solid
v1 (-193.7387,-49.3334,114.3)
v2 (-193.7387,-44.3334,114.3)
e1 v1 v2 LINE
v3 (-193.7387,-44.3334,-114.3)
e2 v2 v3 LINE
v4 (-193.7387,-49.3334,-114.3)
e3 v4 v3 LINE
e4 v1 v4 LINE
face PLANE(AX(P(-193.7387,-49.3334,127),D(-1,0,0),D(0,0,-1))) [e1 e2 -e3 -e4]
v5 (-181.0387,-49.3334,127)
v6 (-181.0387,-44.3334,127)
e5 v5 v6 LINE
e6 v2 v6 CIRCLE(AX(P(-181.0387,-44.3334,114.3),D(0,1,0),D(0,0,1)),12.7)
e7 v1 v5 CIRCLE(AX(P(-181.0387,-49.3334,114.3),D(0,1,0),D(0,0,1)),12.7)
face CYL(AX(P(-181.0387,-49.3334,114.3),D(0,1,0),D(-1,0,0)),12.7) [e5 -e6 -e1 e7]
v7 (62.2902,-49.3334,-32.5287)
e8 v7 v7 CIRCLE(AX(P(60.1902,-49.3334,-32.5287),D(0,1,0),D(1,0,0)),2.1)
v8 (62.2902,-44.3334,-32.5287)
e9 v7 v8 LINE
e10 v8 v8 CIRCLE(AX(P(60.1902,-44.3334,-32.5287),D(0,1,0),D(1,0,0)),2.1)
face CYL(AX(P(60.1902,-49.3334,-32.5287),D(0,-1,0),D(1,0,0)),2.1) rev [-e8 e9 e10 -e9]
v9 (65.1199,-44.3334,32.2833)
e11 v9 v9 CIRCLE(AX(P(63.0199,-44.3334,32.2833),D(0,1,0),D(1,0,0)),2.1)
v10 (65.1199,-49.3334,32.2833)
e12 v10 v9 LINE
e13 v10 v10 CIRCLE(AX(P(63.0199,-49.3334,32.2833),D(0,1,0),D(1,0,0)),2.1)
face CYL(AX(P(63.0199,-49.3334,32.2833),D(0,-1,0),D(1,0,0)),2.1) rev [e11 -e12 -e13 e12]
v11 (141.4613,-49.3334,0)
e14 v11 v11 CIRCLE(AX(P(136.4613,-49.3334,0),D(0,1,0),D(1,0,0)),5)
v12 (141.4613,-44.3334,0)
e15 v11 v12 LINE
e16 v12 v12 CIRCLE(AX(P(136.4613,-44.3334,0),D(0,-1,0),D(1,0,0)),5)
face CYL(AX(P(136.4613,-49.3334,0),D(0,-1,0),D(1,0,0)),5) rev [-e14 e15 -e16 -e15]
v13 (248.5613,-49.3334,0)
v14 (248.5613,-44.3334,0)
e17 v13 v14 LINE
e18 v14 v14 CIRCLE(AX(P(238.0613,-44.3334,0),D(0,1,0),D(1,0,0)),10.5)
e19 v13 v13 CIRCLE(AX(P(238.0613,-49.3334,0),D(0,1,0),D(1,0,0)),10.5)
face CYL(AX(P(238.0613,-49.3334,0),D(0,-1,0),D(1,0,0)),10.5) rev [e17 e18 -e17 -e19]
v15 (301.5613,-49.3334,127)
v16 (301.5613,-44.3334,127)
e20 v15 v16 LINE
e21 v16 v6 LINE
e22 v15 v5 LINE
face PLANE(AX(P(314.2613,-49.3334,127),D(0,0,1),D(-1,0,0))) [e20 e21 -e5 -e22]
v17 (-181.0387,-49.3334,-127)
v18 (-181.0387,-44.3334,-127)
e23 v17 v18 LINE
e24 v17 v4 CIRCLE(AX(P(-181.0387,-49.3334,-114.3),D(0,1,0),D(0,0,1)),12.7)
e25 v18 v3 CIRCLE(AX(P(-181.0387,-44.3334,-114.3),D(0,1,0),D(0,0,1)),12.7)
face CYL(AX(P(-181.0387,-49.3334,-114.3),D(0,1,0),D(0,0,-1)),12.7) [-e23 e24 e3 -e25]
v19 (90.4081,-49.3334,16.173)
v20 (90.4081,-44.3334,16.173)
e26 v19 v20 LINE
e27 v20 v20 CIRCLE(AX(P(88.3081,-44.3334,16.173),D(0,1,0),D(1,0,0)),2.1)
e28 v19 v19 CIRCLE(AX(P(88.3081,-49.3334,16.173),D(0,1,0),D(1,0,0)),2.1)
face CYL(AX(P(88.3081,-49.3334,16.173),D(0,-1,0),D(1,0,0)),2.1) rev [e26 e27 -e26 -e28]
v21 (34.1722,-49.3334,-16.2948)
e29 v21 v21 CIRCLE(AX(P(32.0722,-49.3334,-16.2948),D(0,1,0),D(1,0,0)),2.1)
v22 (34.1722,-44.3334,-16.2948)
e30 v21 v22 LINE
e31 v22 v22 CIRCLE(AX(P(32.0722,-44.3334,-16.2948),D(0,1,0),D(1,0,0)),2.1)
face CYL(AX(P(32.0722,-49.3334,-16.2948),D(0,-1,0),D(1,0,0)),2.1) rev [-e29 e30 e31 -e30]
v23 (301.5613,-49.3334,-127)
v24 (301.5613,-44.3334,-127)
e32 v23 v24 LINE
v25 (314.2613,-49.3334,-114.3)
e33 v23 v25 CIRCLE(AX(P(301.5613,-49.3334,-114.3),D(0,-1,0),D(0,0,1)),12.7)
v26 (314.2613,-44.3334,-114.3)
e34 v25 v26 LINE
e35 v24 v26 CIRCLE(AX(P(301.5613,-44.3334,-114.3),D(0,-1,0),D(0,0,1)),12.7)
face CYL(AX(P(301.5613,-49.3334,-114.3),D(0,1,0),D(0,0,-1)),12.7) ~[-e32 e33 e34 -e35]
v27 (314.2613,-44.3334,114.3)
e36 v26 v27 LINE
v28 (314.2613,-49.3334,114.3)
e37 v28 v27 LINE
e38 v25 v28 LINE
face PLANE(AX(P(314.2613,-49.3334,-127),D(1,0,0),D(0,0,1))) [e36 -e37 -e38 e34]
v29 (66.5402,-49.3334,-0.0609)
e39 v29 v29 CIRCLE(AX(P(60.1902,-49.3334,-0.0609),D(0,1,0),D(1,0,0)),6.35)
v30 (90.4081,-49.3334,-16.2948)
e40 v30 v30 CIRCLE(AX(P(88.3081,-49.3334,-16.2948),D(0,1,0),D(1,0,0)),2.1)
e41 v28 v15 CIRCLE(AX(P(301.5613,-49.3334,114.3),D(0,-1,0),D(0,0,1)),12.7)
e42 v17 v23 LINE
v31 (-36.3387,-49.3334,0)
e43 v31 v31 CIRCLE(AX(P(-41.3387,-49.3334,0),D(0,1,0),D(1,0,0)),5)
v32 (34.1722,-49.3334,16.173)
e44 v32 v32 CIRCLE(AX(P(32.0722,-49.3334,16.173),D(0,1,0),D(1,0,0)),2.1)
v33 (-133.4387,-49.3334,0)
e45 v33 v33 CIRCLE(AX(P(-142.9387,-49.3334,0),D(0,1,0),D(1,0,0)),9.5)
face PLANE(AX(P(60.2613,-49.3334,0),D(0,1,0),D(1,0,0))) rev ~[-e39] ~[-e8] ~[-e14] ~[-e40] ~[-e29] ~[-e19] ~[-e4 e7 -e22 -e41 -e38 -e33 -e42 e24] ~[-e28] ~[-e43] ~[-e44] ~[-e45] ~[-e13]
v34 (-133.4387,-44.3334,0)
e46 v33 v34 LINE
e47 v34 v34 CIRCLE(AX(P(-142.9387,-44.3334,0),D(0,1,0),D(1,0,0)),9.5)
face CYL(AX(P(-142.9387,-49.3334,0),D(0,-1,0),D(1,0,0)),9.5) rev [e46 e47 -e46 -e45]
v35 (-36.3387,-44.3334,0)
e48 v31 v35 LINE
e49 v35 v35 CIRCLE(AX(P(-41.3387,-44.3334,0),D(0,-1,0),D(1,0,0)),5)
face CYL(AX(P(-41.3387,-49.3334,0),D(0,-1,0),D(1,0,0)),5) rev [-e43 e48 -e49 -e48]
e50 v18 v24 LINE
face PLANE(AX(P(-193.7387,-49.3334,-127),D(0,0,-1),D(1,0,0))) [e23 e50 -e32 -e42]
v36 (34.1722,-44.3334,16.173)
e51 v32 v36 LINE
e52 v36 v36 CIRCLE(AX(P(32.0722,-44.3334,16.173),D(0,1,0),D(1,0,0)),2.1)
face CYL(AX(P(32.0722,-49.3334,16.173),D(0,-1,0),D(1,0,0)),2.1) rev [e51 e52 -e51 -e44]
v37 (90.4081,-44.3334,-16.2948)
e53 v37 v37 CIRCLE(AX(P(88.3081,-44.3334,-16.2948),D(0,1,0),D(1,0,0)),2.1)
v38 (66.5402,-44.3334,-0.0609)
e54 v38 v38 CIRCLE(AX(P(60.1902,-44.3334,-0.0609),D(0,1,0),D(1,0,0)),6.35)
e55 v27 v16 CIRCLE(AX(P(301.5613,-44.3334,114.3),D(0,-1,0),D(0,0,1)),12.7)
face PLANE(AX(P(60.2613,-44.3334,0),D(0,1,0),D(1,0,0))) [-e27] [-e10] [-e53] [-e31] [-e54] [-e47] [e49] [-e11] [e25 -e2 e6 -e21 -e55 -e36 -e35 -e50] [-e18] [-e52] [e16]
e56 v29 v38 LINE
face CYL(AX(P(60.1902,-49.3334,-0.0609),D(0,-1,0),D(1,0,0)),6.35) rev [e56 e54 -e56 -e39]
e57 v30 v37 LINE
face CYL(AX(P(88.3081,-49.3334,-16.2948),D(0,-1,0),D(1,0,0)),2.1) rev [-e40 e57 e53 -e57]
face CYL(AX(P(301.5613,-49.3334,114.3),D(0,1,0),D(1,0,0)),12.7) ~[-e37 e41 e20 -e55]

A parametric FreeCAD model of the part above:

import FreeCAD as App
import Part
import Sketcher
from FreeCAD import Vector


def edges_at(feature, points):
    """Names of the edges that pass closest to the given points."""
    edges = feature.Shape.Edges
    near = lambda p: min(range(len(edges)), key=lambda i: edges[i].distToShape(Part.Vertex(*p))[0])
    return sorted({f"Edge{near(p) + 1}" for p in points})

doc = App.newDocument("Part")
body = doc.addObject("PartDesign::Body", "Body")

# Sketch on XZ plane
sketch1 = body.newObject("Sketcher::SketchObject", "Sketch")
sketch1.AttachmentSupport = (doc.getObject("XZ_Plane"), [""])
sketch1.MapMode = "FlatFace"
sketch1.AttachmentOffset = App.Placement(Vector(0, 0, 49.3334), App.Rotation())
sketch1.addGeometry([
    Part.LineSegment(Vector(314.3, -127, 0), Vector(-193.7, -127, 0)),  # 0
    Part.LineSegment(Vector(-193.7, -127, 0), Vector(-193.7, 127, 0)),  # 1
    Part.LineSegment(Vector(-193.7, 127, 0), Vector(314.3, 127, 0)),  # 2
    Part.LineSegment(Vector(314.3, 127, 0), Vector(314.3, -127, 0)),  # 3
    Part.Circle(Vector(32.1, 16.2, 0), Vector(0, 0, 1), 2.1),  # 4
    Part.Circle(Vector(63, 32.3, 0), Vector(0, 0, 1), 2.1),  # 5
    Part.Circle(Vector(88.3, 16.2, 0), Vector(0, 0, 1), 2.1),  # 6
    Part.Circle(Vector(-142.9, 0, 0), Vector(0, 0, 1), 9.5),  # 7
    Part.Circle(Vector(60.2, -0.1, 0), Vector(0, 0, 1), 6.3),  # 8
    Part.Circle(Vector(32.1, -16.3, 0), Vector(0, 0, 1), 2.1),  # 9
    Part.Circle(Vector(60.2, -32.5, 0), Vector(0, 0, 1), 2.1),  # 10
    Part.Circle(Vector(88.3, -16.3, 0), Vector(0, 0, 1), 2.1),  # 11
    Part.Circle(Vector(238.1, 0, 0), Vector(0, 0, 1), 10.5),  # 12
], False)
sketch1.addConstraint([
    Sketcher.Constraint("Coincident", 0, 2, 1, 1),
    Sketcher.Constraint("Coincident", 1, 2, 2, 1),
    Sketcher.Constraint("Coincident", 2, 2, 3, 1),
    Sketcher.Constraint("Coincident", 3, 2, 0, 1),
    Sketcher.Constraint("Horizontal", 0),
    Sketcher.Constraint("Vertical", 1),
    Sketcher.Constraint("Horizontal", 2),
    Sketcher.Constraint("Vertical", 3),
    Sketcher.Constraint("Equal", 4, 5),
    Sketcher.Constraint("Equal", 5, 6),
    Sketcher.Constraint("Equal", 6, 9),
    Sketcher.Constraint("Equal", 9, 10),
    Sketcher.Constraint("Equal", 10, 11),
    Sketcher.Constraint("PointOnObject", 7, 3, -1),
    Sketcher.Constraint("PointOnObject", 12, 3, -1),
    Sketcher.Constraint("Horizontal", 4, 3, 6, 3),
    Sketcher.Constraint("Horizontal", 9, 3, 11, 3),
    Sketcher.Constraint("Vertical", 4, 3, 9, 3),
    Sketcher.Constraint("Vertical", 8, 3, 10, 3),
    Sketcher.Constraint("Vertical", 6, 3, 11, 3),
    Sketcher.Constraint("Diameter", 7, 19.0),
    Sketcher.Constraint("Diameter", 12, 21.0),
    Sketcher.Constraint("DistanceX", 0, 2, 0, 1, 508.0),
    Sketcher.Constraint("DistanceY", 1, 1, 1, 2, 254.0),
    Sketcher.Constraint("Diameter", 4, 4.2),
    Sketcher.Constraint("Diameter", 8, 12.7),
    Sketcher.Constraint("DistanceY", 0, 2, -1, 1, 127.0),
    Sketcher.Constraint("DistanceX", 0, 2, 7, 3, 50.8),
    Sketcher.Constraint("DistanceX", 12, 3, 2, 2, 76.2),
    Sketcher.Constraint("DistanceX", -1, 1, 5, 3, 63.02),
    Sketcher.Constraint("DistanceY", -1, 1, 4, 3, 16.173),
    Sketcher.Constraint("DistanceX", -1, 1, 6, 3, 88.308),
    Sketcher.Constraint("DistanceY", 8, 3, -1, 1, 0.061),
    Sketcher.Constraint("DistanceX", 4, 3, 6, 3, 56.236),
    Sketcher.Constraint("DistanceX", 7, 3, 4, 3, 175.011),
    Sketcher.Constraint("DistanceX", 8, 3, 6, 3, 28.118),
    Sketcher.Constraint("DistanceY", 9, 3, 8, 3, 16.234),
    Sketcher.Constraint("DistanceY", 9, 3, 5, 3, 48.578),
    Sketcher.Constraint("DistanceY", 10, 3, 9, 3, 16.234),
])
pad1 = body.newObject("PartDesign::Pad", "Pad")
pad1.Profile = sketch1
pad1.Length = 5
pad1.Reversed = True
doc.recompute()

fillet = body.newObject("PartDesign::Fillet", "Fillet")
fillet.Base = (pad1, edges_at(pad1, [
    (314.261, -46.833, -127),
    (-193.739, -46.833, -127),
    (-193.739, -46.833, 127),
    (314.261, -46.833, 127),
]))
fillet.Radius = 12.7

# Sketch on XZ plane
sketch2 = body.newObject("Sketcher::SketchObject", "Sketch001")
sketch2.AttachmentSupport = (doc.getObject("XZ_Plane"), [""])
sketch2.MapMode = "FlatFace"
sketch2.AttachmentOffset = App.Placement(Vector(0, 0, 49.3334), App.Rotation())
sketch2.addGeometry([
    Part.Circle(Vector(136, 0, 0), Vector(0, 0, 1), 5),
    Part.Circle(Vector(-41, 0, 0), Vector(0, 0, 1), 5),
], False)
sketch2.addConstraint([
    Sketcher.Constraint("Equal", 0, 1),
    Sketcher.Constraint("PointOnObject", 0, 3, -1),
    Sketcher.Constraint("PointOnObject", 1, 3, -1),
    Sketcher.Constraint("Diameter", 0, 10.0),
    Sketcher.Constraint("DistanceX", 1, 3, 0, 3, 177.8),
    Sketcher.Constraint("DistanceX", -1, 1, 0, 3, 136.4613),
])
pocket1 = body.newObject("PartDesign::Pocket", "Pocket")
pocket1.Profile = sketch2
pocket1.Length = 5

doc.recompute()
